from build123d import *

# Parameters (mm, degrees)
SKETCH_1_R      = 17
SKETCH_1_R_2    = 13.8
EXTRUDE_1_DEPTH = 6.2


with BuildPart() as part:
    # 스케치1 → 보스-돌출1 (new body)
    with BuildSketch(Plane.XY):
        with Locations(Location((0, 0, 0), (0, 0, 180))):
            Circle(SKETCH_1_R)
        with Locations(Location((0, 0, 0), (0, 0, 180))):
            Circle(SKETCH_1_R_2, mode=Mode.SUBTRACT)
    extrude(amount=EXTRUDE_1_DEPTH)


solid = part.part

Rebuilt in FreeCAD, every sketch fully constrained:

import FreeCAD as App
import Part
import Sketcher
Q = App.Units.Quantity

doc = App.newDocument("Part")
body = doc.addObject("PartDesign::Body", "Body")

# Sketch on XY plane
sketch1 = body.newObject("Sketcher::SketchObject", "Sketch")
sketch1.AttachmentSupport = (doc.getObject("XY_Plane"), [""])
sketch1.MapMode = "FlatFace"
sketch1.addGeometry([
    Part.Circle(App.Vector(0, 0, 0), App.Vector(0, 0, 1), 17),
    Part.Circle(App.Vector(0, 0, 0), App.Vector(0, 0, 1), 14),
], False)
sketch1.addConstraint([
    Sketcher.Constraint("Coincident", 0, 3, -1, 1),
    Sketcher.Constraint("Coincident", 1, 3, -1, 1),
    Sketcher.Constraint("Diameter", 0, Q("34 mm")),
    Sketcher.Constraint("Diameter", 1, Q("27.6 mm")),
])
pad1 = body.newObject("PartDesign::Pad", "Pad")
pad1.Profile = sketch1
pad1.Length = 6.2

doc.recompute()
